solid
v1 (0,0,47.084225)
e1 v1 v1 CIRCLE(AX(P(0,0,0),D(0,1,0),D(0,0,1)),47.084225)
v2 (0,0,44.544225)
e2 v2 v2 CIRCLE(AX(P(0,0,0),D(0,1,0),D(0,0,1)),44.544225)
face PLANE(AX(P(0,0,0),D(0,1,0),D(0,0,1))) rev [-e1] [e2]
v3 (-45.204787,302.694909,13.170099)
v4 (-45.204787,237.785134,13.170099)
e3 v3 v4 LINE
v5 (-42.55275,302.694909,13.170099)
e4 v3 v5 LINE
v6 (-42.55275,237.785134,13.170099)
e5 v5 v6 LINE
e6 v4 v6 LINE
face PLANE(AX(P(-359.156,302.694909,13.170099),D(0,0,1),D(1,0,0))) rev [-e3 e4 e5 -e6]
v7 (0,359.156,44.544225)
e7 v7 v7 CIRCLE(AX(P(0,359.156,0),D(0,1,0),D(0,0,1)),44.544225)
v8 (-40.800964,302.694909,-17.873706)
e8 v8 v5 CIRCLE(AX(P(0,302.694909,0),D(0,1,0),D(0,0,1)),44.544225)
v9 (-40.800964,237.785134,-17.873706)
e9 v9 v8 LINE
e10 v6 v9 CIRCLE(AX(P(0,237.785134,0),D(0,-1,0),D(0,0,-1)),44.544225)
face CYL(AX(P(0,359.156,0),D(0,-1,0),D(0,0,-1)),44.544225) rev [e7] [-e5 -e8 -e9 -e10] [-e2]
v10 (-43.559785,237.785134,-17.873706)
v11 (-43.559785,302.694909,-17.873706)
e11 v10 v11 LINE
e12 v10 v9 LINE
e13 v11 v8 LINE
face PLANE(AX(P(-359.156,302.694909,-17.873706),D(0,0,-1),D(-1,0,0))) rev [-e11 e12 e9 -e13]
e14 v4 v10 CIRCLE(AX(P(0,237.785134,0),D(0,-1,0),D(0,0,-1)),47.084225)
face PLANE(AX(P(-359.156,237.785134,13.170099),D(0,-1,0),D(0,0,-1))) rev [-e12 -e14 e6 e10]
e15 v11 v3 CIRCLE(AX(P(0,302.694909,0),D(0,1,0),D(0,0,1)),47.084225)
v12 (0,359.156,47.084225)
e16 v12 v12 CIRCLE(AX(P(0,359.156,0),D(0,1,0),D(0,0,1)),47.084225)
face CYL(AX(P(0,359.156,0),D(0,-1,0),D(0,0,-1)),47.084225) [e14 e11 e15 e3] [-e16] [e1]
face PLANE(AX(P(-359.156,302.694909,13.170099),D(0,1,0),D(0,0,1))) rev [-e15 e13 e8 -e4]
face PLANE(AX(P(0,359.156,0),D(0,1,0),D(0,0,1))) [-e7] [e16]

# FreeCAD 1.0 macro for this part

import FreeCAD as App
import Part
import Sketcher
Q = App.Units.Quantity


def faces_at(feature, points):
    """Names of the faces that lie closest to the given points."""
    faces = feature.Shape.Faces
    near = lambda p: min(range(len(faces)), key=lambda i: faces[i].distToShape(Part.Vertex(*p))[0])
    return sorted({f"Face{near(p) + 1}" for p in points})

doc = App.newDocument("Part")
body = doc.addObject("PartDesign::Body", "Body")

sketch1 = body.newObject("Sketcher::SketchObject", "Sketch")
sketch1.AttachmentSupport = (doc.getObject("XZ_Plane"), [""])
sketch1.MapMode = "FlatFace"
sketch1.addGeometry(Part.Circle(App.Vector(0, 0, 0), App.Vector(0, 0, 1), 47.084225), False)
sketch1.addConstraint([
    Sketcher.Constraint("Coincident", 0, 3, -1, 1),
    Sketcher.Constraint("Diameter", 0, 94.16845),
])
pad1 = body.newObject("PartDesign::Pad", "Pad")
pad1.Profile = sketch1
pad1.Length = Q("14.14 in")
pad1.Reversed = True
doc.recompute()

thickness = body.newObject("PartDesign::Thickness", "Thickness")
thickness.Base = (pad1, faces_at(pad1, [(0, 359.156, 0), (0, 0, 0)]))
thickness.Value = Q("0.1 in")
thickness.Reversed = True
thickness.Join = "Intersection"

sketch2 = body.newObject("Sketcher::SketchObject", "Sketch001")
sketch2.AttachmentSupport = (doc.getObject("YZ_Plane"), [""])
sketch2.MapMode = "FlatFace"
sketch2.addGeometry([
    Part.LineSegment(App.Vector(302.694909, 13.170099, 0), App.Vector(237.785134, 13.170099, 0)),
    Part.LineSegment(App.Vector(237.785134, 13.170099, 0), App.Vector(237.785134, -17.873706, 0)),
    Part.LineSegment(App.Vector(237.785134, -17.873706, 0), App.Vector(302.694909, -17.873706, 0)),
    Part.LineSegment(App.Vector(302.694909, -17.873706, 0), App.Vector(302.694909, 13.170099, 0)),
], False)
sketch2.addConstraint([
    Sketcher.Constraint("Coincident", 0, 2, 1, 1),
    Sketcher.Constraint("Coincident", 1, 2, 2, 1),
    Sketcher.Constraint("Coincident", 2, 2, 3, 1),
    Sketcher.Constraint("Coincident", 3, 2, 0, 1),
    Sketcher.Constraint("Horizontal", 0),
    Sketcher.Constraint("Vertical", 1),
    Sketcher.Constraint("Horizontal", 2),
    Sketcher.Constraint("Vertical", 3),
    Sketcher.Constraint("DistanceY", -1, 1, 0, 2, 13.170099),
    Sketcher.Constraint("DistanceX", 0, 2, 0, 1, 64.909774),
    Sketcher.Constraint("DistanceY", 1, 2, 1, 1, 31.043805),
    Sketcher.Constraint("DistanceX", -1, 1, 2, 2, 302.694909),
])
pocket1 = body.newObject("PartDesign::Pocket", "Pocket")
pocket1.Profile = sketch2
pocket1.Length = Q("14.14 in")

doc.recompute()
